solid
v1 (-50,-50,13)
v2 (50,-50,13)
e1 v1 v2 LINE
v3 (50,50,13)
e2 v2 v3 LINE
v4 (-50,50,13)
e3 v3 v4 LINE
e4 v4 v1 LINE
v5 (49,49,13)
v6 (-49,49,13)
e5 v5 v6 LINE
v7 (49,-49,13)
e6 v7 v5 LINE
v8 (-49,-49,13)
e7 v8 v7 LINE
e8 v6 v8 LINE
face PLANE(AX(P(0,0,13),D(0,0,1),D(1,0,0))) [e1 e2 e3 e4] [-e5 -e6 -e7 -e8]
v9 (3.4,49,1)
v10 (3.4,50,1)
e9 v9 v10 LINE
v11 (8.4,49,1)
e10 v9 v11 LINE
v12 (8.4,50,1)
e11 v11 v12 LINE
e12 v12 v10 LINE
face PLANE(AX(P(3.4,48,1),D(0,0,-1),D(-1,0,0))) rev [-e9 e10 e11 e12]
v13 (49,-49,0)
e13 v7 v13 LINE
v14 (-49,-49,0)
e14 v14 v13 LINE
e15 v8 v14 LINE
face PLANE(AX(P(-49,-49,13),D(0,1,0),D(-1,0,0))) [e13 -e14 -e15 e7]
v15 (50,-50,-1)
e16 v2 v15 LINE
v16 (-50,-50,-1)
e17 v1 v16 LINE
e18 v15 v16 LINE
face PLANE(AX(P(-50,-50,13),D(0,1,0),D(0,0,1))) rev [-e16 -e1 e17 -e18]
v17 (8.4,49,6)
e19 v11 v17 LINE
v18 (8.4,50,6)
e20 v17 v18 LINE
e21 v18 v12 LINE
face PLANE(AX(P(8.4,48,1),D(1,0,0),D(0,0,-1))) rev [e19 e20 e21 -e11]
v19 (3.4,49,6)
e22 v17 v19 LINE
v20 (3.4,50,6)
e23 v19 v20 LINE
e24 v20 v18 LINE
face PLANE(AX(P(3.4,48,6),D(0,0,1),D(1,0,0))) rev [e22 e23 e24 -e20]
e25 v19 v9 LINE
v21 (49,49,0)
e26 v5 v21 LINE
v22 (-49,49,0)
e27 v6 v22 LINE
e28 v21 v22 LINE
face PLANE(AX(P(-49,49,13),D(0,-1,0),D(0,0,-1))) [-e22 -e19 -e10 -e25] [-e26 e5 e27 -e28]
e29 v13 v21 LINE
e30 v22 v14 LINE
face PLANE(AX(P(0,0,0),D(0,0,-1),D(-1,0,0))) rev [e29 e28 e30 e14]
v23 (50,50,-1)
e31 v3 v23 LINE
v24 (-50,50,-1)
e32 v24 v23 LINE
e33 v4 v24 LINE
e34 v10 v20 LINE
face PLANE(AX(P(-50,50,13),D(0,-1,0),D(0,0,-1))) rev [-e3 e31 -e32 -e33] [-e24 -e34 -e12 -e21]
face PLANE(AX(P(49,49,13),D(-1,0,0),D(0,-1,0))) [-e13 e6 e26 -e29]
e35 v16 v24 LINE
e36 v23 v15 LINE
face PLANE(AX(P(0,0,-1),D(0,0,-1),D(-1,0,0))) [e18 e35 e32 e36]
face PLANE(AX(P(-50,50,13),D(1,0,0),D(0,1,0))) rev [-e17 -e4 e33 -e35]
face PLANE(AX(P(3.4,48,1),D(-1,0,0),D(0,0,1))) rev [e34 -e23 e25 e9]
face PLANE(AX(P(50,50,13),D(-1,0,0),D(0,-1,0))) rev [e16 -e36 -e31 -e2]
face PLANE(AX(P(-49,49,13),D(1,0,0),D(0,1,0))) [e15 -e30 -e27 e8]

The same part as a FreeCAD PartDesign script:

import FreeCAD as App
import Part
import Sketcher
from FreeCAD import Vector
Q = App.Units.Quantity


def add_polygon(sketch, points):
    """Adds a closed chain of lines whose ends are joined by coincident constraints."""
    first, n = sketch.GeometryCount, len(points)
    for a, b in zip(points, points[1:] + points[:1]):
        sketch.addGeometry(Part.LineSegment(App.Vector(*a, 0), App.Vector(*b, 0)), False)
    for i in range(n):
        sketch.addConstraint(Sketcher.Constraint("Coincident", first + i, 2, first + (i + 1) % n, 1))

doc = App.newDocument("Part")
body = doc.addObject("PartDesign::Body", "Body")

sketch1 = body.newObject("Sketcher::SketchObject", "Sketch")
sketch1.AttachmentSupport = (doc.getObject("XY_Plane"), [""])
sketch1.MapMode = "FlatFace"
add_polygon(sketch1, [(-50, 50), (-50, -50), (50, -50), (50, 50)])
add_polygon(sketch1, [(49, -49), (-49, -49), (-49, 49), (49, 49)])
sketch1.addConstraint([
    Sketcher.Constraint("Vertical", 0),
    Sketcher.Constraint("Horizontal", 1),
    Sketcher.Constraint("Vertical", 2),
    Sketcher.Constraint("Horizontal", 3),
    Sketcher.Constraint("Horizontal", 4),
    Sketcher.Constraint("Vertical", 5),
    Sketcher.Constraint("Horizontal", 6),
    Sketcher.Constraint("Vertical", 7),
    Sketcher.Constraint("Symmetric", 0, 2, 2, 2, -1, 1),
    Sketcher.Constraint("Symmetric", 4, 2, 6, 2, -1, 1),
    Sketcher.Constraint("Equal", 3, 0),
    Sketcher.Constraint("Equal", 6, 5),
    Sketcher.Constraint("DistanceX", 1, 1, 1, 2, Q("100 mm")),
    Sketcher.Constraint("DistanceX", 4, 2, 4, 1, Q("98 mm")),
])
pad1 = body.newObject("PartDesign::Pad", "Pad")
pad1.Profile = sketch1
pad1.Length = 13

sketch2 = body.newObject("Sketcher::SketchObject", "Sketch001")
sketch2.AttachmentSupport = (doc.getObject("XY_Plane"), [""])
sketch2.MapMode = "FlatFace"
add_polygon(sketch2, [(50, 50), (50, -50), (-50, -50), (-50, 50)])
sketch2.addConstraint([
    Sketcher.Constraint("Vertical", 0),
    Sketcher.Constraint("Horizontal", 1),
    Sketcher.Constraint("Vertical", 2),
    Sketcher.Constraint("Horizontal", 3),
    Sketcher.Constraint("Symmetric", 0, 2, 2, 2, -1, 1),
    Sketcher.Constraint("Equal", 3, 0),
    Sketcher.Constraint("DistanceX", 1, 2, 1, 1, Q("100 mm")),
])
pad2 = body.newObject("PartDesign::Pad", "Pad001")
pad2.Profile = sketch2
pad2.Length = 1
pad2.Reversed = True

sketch3 = body.newObject("Sketcher::SketchObject", "Sketch002")
sketch3.AttachmentSupport = (doc.getObject("XZ_Plane"), [""])
sketch3.MapMode = "FlatFace"
sketch3.AttachmentOffset = App.Placement(Vector(0, 0, -50), App.Rotation())
add_polygon(sketch3, [(3, 1), (3, 6), (8, 6), (8, 1)])
sketch3.addConstraint([
    Sketcher.Constraint("Vertical", 0),
    Sketcher.Constraint("Horizontal", 1),
    Sketcher.Constraint("Vertical", 2),
    Sketcher.Constraint("Horizontal", 3),
    Sketcher.Constraint("Equal", 3, 0),
    Sketcher.Constraint("DistanceX", 1, 1, 1, 2, Q("5 mm")),
    Sketcher.Constraint("DistanceY", -1, 1, 0, 2, Q("6 mm")),
    Sketcher.Constraint("DistanceX", -1, 1, 0, 2, Q("3.4 mm")),
])
pocket1 = body.newObject("PartDesign::Pocket", "Pocket")
pocket1.Profile = sketch3
pocket1.Length = 2
pocket1.Reversed = True

doc.recompute()
